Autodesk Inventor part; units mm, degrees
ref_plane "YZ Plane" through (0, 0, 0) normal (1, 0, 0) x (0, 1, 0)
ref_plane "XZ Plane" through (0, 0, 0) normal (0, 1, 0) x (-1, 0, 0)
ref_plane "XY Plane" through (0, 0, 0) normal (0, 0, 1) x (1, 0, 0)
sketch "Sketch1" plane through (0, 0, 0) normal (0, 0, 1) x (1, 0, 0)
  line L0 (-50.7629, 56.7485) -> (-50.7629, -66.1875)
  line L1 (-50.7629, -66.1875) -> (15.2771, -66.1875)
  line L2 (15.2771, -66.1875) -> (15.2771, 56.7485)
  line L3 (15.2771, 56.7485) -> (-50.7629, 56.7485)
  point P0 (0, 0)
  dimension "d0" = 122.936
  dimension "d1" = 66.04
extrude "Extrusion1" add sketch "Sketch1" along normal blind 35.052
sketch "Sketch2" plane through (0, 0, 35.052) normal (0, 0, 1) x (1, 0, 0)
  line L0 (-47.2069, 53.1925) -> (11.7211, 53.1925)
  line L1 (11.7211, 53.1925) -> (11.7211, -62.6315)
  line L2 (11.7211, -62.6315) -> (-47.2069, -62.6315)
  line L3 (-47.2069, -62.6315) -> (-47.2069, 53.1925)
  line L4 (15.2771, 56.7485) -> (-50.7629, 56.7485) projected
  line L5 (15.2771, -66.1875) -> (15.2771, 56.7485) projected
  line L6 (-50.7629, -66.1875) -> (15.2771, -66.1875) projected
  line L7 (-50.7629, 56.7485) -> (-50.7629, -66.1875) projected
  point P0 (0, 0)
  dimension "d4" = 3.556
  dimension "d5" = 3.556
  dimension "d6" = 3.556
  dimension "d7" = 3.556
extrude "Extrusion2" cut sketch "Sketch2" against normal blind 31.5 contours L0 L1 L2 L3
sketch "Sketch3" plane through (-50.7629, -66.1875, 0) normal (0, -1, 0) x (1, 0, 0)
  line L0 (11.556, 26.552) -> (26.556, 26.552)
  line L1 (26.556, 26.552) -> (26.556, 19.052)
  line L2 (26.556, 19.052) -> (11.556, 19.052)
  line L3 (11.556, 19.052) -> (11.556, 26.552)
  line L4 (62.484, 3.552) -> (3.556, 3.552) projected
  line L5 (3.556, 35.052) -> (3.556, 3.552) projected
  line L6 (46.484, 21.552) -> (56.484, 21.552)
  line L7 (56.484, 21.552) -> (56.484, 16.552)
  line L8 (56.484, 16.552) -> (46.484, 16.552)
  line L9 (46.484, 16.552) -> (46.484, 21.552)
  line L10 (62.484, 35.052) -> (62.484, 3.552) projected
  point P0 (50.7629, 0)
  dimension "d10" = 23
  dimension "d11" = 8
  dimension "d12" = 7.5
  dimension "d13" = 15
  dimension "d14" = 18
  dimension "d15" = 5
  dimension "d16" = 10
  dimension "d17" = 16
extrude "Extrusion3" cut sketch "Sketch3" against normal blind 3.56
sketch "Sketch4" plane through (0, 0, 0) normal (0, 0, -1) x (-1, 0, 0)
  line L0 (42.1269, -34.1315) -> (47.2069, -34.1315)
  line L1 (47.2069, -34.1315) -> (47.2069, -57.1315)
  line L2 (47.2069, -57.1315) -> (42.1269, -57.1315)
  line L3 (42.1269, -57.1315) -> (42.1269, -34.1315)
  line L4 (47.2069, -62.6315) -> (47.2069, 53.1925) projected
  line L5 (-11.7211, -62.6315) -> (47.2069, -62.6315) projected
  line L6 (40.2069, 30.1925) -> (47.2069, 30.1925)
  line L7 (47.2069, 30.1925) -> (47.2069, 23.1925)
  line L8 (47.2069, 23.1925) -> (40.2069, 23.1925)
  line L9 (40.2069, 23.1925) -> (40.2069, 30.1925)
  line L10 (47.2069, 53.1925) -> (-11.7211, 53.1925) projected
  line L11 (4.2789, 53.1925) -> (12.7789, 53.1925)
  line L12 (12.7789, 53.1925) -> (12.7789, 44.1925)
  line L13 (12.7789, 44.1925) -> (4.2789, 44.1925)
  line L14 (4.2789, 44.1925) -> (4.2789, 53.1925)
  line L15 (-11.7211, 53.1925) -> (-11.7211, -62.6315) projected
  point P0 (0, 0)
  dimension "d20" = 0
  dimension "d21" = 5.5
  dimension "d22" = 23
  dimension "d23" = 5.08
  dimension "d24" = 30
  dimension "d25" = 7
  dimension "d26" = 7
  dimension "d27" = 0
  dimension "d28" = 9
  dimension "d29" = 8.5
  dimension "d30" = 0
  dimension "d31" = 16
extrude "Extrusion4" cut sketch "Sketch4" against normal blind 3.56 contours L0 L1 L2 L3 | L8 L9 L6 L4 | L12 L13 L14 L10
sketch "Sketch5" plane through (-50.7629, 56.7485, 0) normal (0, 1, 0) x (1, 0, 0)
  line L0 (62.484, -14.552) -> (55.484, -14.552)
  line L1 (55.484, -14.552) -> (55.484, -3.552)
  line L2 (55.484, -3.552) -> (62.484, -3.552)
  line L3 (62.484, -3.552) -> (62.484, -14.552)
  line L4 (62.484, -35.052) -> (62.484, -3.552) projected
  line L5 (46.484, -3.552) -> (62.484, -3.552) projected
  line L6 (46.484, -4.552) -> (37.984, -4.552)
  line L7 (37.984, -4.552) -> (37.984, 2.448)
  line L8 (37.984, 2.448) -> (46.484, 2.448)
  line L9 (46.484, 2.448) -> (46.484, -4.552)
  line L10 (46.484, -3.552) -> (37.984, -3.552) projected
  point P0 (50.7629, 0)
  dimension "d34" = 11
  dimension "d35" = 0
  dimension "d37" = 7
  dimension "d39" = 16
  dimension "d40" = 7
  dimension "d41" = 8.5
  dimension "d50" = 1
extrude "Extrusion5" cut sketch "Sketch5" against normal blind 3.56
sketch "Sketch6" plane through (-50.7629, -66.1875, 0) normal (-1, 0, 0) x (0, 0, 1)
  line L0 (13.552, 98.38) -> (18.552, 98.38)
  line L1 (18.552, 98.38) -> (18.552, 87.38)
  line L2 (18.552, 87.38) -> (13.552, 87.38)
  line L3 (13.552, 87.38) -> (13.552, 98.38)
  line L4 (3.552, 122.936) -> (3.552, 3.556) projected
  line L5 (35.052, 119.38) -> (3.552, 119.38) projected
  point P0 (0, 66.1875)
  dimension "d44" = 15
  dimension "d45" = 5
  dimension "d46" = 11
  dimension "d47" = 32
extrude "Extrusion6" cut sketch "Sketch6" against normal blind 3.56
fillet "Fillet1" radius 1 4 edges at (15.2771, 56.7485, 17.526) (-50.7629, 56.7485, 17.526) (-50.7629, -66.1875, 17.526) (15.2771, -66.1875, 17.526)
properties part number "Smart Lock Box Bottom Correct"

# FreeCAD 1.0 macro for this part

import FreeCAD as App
import Part
import Sketcher


def edges_at(feature, points):
    """Names of the edges that pass closest to the given points."""
    edges = feature.Shape.Edges
    near = lambda p: min(range(len(edges)), key=lambda i: edges[i].distToShape(Part.Vertex(*p))[0])
    return sorted({f"Edge{near(p) + 1}" for p in points})

doc = App.newDocument("Part")
body = doc.addObject("PartDesign::Body", "Body")

# Sketch on XY plane
sketch1 = body.newObject("Sketcher::SketchObject", "Sketch")
sketch1.AttachmentSupport = (doc.getObject("XY_Plane"), [""])
sketch1.MapMode = "FlatFace"
sketch1.addGeometry(Part.LineSegment(App.Vector(15, 57, 0), App.Vector(-51, 57, 0)), False)
sketch1.addGeometry(Part.LineSegment(App.Vector(-51, 57, 0), App.Vector(-51, -66, 0)), False)
sketch1.addGeometry(Part.LineSegment(App.Vector(-51, -66, 0), App.Vector(15, -66, 0)), False)
sketch1.addGeometry(Part.LineSegment(App.Vector(15, -66, 0), App.Vector(15, 57, 0)), False)
sketch1.addConstraint(Sketcher.Constraint("Coincident", 0, 2, 1, 1))
sketch1.addConstraint(Sketcher.Constraint("Coincident", 1, 2, 2, 1))
sketch1.addConstraint(Sketcher.Constraint("Coincident", 2, 2, 3, 1))
sketch1.addConstraint(Sketcher.Constraint("Coincident", 3, 2, 0, 1))
sketch1.addConstraint(Sketcher.Constraint("Horizontal", 0))
sketch1.addConstraint(Sketcher.Constraint("Vertical", 1))
sketch1.addConstraint(Sketcher.Constraint("Horizontal", 2))
sketch1.addConstraint(Sketcher.Constraint("Vertical", 3))
sketch1.addConstraint(Sketcher.Constraint("DistanceX", 0, 2, 0, 1, 66.04))
sketch1.addConstraint(Sketcher.Constraint("DistanceY", 1, 2, 1, 1, 122.936))
sketch1.addConstraint(Sketcher.Constraint("DistanceX", 0, 2, -1, 1, 50.763))
sketch1.addConstraint(Sketcher.Constraint("DistanceY", -1, 1, 0, 2, 56.7485))
pad1 = body.newObject("PartDesign::Pad", "Pad")
pad1.Profile = sketch1
pad1.Length = 35.052

# Sketch on XY plane
sketch2 = body.newObject("Sketcher::SketchObject", "Sketch001")
sketch2.AttachmentSupport = (doc.getObject("XY_Plane"), [""])
sketch2.MapMode = "FlatFace"
sketch2.AttachmentOffset = App.Placement(App.Vector(0, 0, 35.052), App.Rotation())
sketch2.addGeometry(Part.LineSegment(App.Vector(12, 53, 0), App.Vector(-47, 53, 0)), False)
sketch2.addGeometry(Part.LineSegment(App.Vector(-47, 53, 0), App.Vector(-47, -63, 0)), False)
sketch2.addGeometry(Part.LineSegment(App.Vector(-47, -63, 0), App.Vector(12, -63, 0)), False)
sketch2.addGeometry(Part.LineSegment(App.Vector(12, -63, 0), App.Vector(12, 53, 0)), False)
sketch2.addConstraint(Sketcher.Constraint("Coincident", 0, 2, 1, 1))
sketch2.addConstraint(Sketcher.Constraint("Coincident", 1, 2, 2, 1))
sketch2.addConstraint(Sketcher.Constraint("Coincident", 2, 2, 3, 1))
sketch2.addConstraint(Sketcher.Constraint("Coincident", 3, 2, 0, 1))
sketch2.addConstraint(Sketcher.Constraint("Horizontal", 0))
sketch2.addConstraint(Sketcher.Constraint("Vertical", 1))
sketch2.addConstraint(Sketcher.Constraint("Horizontal", 2))
sketch2.addConstraint(Sketcher.Constraint("Vertical", 3))
sketch2.addConstraint(Sketcher.Constraint("DistanceX", 0, 2, 0, 1, 58.928))
sketch2.addConstraint(Sketcher.Constraint("DistanceY", 1, 2, 1, 1, 115.824))
sketch2.addConstraint(Sketcher.Constraint("DistanceX", 0, 2, -1, 1, 47.207))
sketch2.addConstraint(Sketcher.Constraint("DistanceY", -1, 1, 0, 2, 53.1925))
pocket1 = body.newObject("PartDesign::Pocket", "Pocket")
pocket1.Profile = sketch2
pocket1.Length = 31.5

# Sketch on XZ plane
sketch3 = body.newObject("Sketcher::SketchObject", "Sketch002")
sketch3.AttachmentSupport = (doc.getObject("XZ_Plane"), [""])
sketch3.MapMode = "FlatFace"
sketch3.AttachmentOffset = App.Placement(App.Vector(0, 0, 66.1875), App.Rotation())
sketch3.addGeometry(Part.LineSegment(App.Vector(-24, 27, 0), App.Vector(-39, 27, 0)), False)
sketch3.addGeometry(Part.LineSegment(App.Vector(-39, 27, 0), App.Vector(-39, 19, 0)), False)
sketch3.addGeometry(Part.LineSegment(App.Vector(-39, 19, 0), App.Vector(-24, 19, 0)), False)
sketch3.addGeometry(Part.LineSegment(App.Vector(-24, 19, 0), App.Vector(-24, 27, 0)), False)
sketch3.addGeometry(Part.LineSegment(App.Vector(6, 22, 0), App.Vector(-4, 22, 0)), False)
sketch3.addGeometry(Part.LineSegment(App.Vector(-4, 22, 0), App.Vector(-4, 17, 0)), False)
sketch3.addGeometry(Part.LineSegment(App.Vector(-4, 17, 0), App.Vector(6, 17, 0)), False)
sketch3.addGeometry(Part.LineSegment(App.Vector(6, 17, 0), App.Vector(6, 22, 0)), False)
sketch3.addConstraint(Sketcher.Constraint("Coincident", 0, 2, 1, 1))
sketch3.addConstraint(Sketcher.Constraint("Coincident", 1, 2, 2, 1))
sketch3.addConstraint(Sketcher.Constraint("Coincident", 2, 2, 3, 1))
sketch3.addConstraint(Sketcher.Constraint("Coincident", 3, 2, 0, 1))
sketch3.addConstraint(Sketcher.Constraint("Coincident", 4, 2, 5, 1))
sketch3.addConstraint(Sketcher.Constraint("Coincident", 5, 2, 6, 1))
sketch3.addConstraint(Sketcher.Constraint("Coincident", 6, 2, 7, 1))
sketch3.addConstraint(Sketcher.Constraint("Coincident", 7, 2, 4, 1))
sketch3.addConstraint(Sketcher.Constraint("Horizontal", 0))
sketch3.addConstraint(Sketcher.Constraint("Vertical", 1))
sketch3.addConstraint(Sketcher.Constraint("Horizontal", 2))
sketch3.addConstraint(Sketcher.Constraint("Vertical", 3))
sketch3.addConstraint(Sketcher.Constraint("Horizontal", 4))
sketch3.addConstraint(Sketcher.Constraint("Vertical", 5))
sketch3.addConstraint(Sketcher.Constraint("Horizontal", 6))
sketch3.addConstraint(Sketcher.Constraint("Vertical", 7))
sketch3.addConstraint(Sketcher.Constraint("DistanceX", 0, 2, 0, 1, 15.0))
sketch3.addConstraint(Sketcher.Constraint("DistanceX", 4, 2, 4, 1, 10.0))
sketch3.addConstraint(Sketcher.Constraint("DistanceY", 5, 2, 5, 1, 5.0))
sketch3.addConstraint(Sketcher.Constraint("DistanceY", 1, 2, 1, 1, 7.5))
sketch3.addConstraint(Sketcher.Constraint("DistanceY", 4, 2, 3, 2, 5.0))
sketch3.addConstraint(Sketcher.Constraint("DistanceX", 0, 2, -1, 1, 39.207))
sketch3.addConstraint(Sketcher.Constraint("DistanceY", -1, 1, 0, 2, 26.552))
sketch3.addConstraint(Sketcher.Constraint("DistanceX", 4, 2, -1, 1, 4.279))
pocket2 = body.newObject("PartDesign::Pocket", "Pocket001")
pocket2.Profile = sketch3
pocket2.Length = 3.56

# Sketch on XY plane
sketch4 = body.newObject("Sketcher::SketchObject", "Sketch003")
sketch4.AttachmentSupport = (doc.getObject("XY_Plane"), [""])
sketch4.MapMode = "FlatFace"
sketch4.addGeometry(Part.LineSegment(App.Vector(-47, -34, 0), App.Vector(-42, -34, 0)), False)
sketch4.addGeometry(Part.LineSegment(App.Vector(-42, -34, 0), App.Vector(-42, -57, 0)), False)
sketch4.addGeometry(Part.LineSegment(App.Vector(-42, -57, 0), App.Vector(-47, -57, 0)), False)
sketch4.addGeometry(Part.LineSegment(App.Vector(-47, -57, 0), App.Vector(-47, -34, 0)), False)
sketch4.addGeometry(Part.LineSegment(App.Vector(-40, 23, 0), App.Vector(-47, 23, 0)), False)
sketch4.addGeometry(Part.LineSegment(App.Vector(-47, 23, 0), App.Vector(-47, 30, 0)), False)
sketch4.addGeometry(Part.LineSegment(App.Vector(-47, 30, 0), App.Vector(-40, 30, 0)), False)
sketch4.addGeometry(Part.LineSegment(App.Vector(-40, 30, 0), App.Vector(-40, 23, 0)), False)
sketch4.addGeometry(Part.LineSegment(App.Vector(-13, 44, 0), App.Vector(-13, 53, 0)), False)
sketch4.addGeometry(Part.LineSegment(App.Vector(-13, 53, 0), App.Vector(-4, 53, 0)), False)
sketch4.addGeometry(Part.LineSegment(App.Vector(-4, 53, 0), App.Vector(-4, 44, 0)), False)
sketch4.addGeometry(Part.LineSegment(App.Vector(-4, 44, 0), App.Vector(-13, 44, 0)), False)
sketch4.addConstraint(Sketcher.Constraint("Coincident", 0, 2, 1, 1))
sketch4.addConstraint(Sketcher.Constraint("Coincident", 1, 2, 2, 1))
sketch4.addConstraint(Sketcher.Constraint("Coincident", 2, 2, 3, 1))
sketch4.addConstraint(Sketcher.Constraint("Coincident", 3, 2, 0, 1))
sketch4.addConstraint(Sketcher.Constraint("Coincident", 4, 2, 5, 1))
sketch4.addConstraint(Sketcher.Constraint("Coincident", 5, 2, 6, 1))
sketch4.addConstraint(Sketcher.Constraint("Coincident", 6, 2, 7, 1))
sketch4.addConstraint(Sketcher.Constraint("Coincident", 7, 2, 4, 1))
sketch4.addConstraint(Sketcher.Constraint("Coincident", 8, 2, 9, 1))
sketch4.addConstraint(Sketcher.Constraint("Coincident", 9, 2, 10, 1))
sketch4.addConstraint(Sketcher.Constraint("Coincident", 10, 2, 11, 1))
sketch4.addConstraint(Sketcher.Constraint("Coincident", 11, 2, 8, 1))
sketch4.addConstraint(Sketcher.Constraint("Horizontal", 0))
sketch4.addConstraint(Sketcher.Constraint("Vertical", 1))
sketch4.addConstraint(Sketcher.Constraint("Horizontal", 2))
sketch4.addConstraint(Sketcher.Constraint("Vertical", 3))
sketch4.addConstraint(Sketcher.Constraint("Horizontal", 4))
sketch4.addConstraint(Sketcher.Constraint("Vertical", 5))
sketch4.addConstraint(Sketcher.Constraint("Horizontal", 6))
sketch4.addConstraint(Sketcher.Constraint("Vertical", 7))
sketch4.addConstraint(Sketcher.Constraint("Vertical", 8))
sketch4.addConstraint(Sketcher.Constraint("Horizontal", 9))
sketch4.addConstraint(Sketcher.Constraint("Vertical", 10))
sketch4.addConstraint(Sketcher.Constraint("Horizontal", 11))
sketch4.addConstraint(Sketcher.Constraint("Vertical", 3, 2, 4, 2))
sketch4.addConstraint(Sketcher.Constraint("Equal", 6, 5))
sketch4.addConstraint(Sketcher.Constraint("DistanceX", 4, 2, 4, 1, 7.0))
sketch4.addConstraint(Sketcher.Constraint("DistanceY", 1, 2, 1, 1, 23.0))
sketch4.addConstraint(Sketcher.Constraint("DistanceY", 8, 1, 8, 2, 9.0))
sketch4.addConstraint(Sketcher.Constraint("DistanceX", 9, 1, 9, 2, 8.5))
sketch4.addConstraint(Sketcher.Constraint("DistanceY", 6, 2, 8, 2, 23.0))
sketch4.addConstraint(Sketcher.Constraint("DistanceX", 0, 1, 0, 2, 5.08))
sketch4.addConstraint(Sketcher.Constraint("DistanceX", 0, 2, -1, 1, 42.127))
sketch4.addConstraint(Sketcher.Constraint("DistanceX", 8, 2, -1, 1, 12.779))
sketch4.addConstraint(Sketcher.Constraint("DistanceY", 3, 2, 4, 2, 57.324))
sketch4.addConstraint(Sketcher.Constraint("DistanceY", 0, 2, -1, 1, 34.1315))
pocket3 = body.newObject("PartDesign::Pocket", "Pocket002")
pocket3.Profile = sketch4
pocket3.Length = 3.56
pocket3.Reversed = True

# Sketch on XZ plane
sketch5 = body.newObject("Sketcher::SketchObject", "Sketch004")
sketch5.AttachmentSupport = (doc.getObject("XZ_Plane"), [""])
sketch5.MapMode = "FlatFace"
sketch5.AttachmentOffset = App.Placement(App.Vector(0, 0, -56.7485), App.Rotation())
sketch5.addGeometry(Part.LineSegment(App.Vector(-4, 5, 0), App.Vector(-4, -2, 0)), False)
sketch5.addGeometry(Part.LineSegment(App.Vector(-4, -2, 0), App.Vector(-13, -2, 0)), False)
sketch5.addGeometry(Part.LineSegment(App.Vector(-13, -2, 0), App.Vector(-13, 5, 0)), False)
sketch5.addGeometry(Part.LineSegment(App.Vector(-13, 5, 0), App.Vector(-4, 5, 0)), False)
sketch5.addGeometry(Part.LineSegment(App.Vector(5, 15, 0), App.Vector(12, 15, 0)), False)
sketch5.addGeometry(Part.LineSegment(App.Vector(12, 15, 0), App.Vector(12, 4, 0)), False)
sketch5.addGeometry(Part.LineSegment(App.Vector(12, 4, 0), App.Vector(5, 4, 0)), False)
sketch5.addGeometry(Part.LineSegment(App.Vector(5, 4, 0), App.Vector(5, 15, 0)), False)
sketch5.addConstraint(Sketcher.Constraint("Coincident", 0, 2, 1, 1))
sketch5.addConstraint(Sketcher.Constraint("Coincident", 1, 2, 2, 1))
sketch5.addConstraint(Sketcher.Constraint("Coincident", 2, 2, 3, 1))
sketch5.addConstraint(Sketcher.Constraint("Coincident", 3, 2, 0, 1))
sketch5.addConstraint(Sketcher.Constraint("Coincident", 4, 2, 5, 1))
sketch5.addConstraint(Sketcher.Constraint("Coincident", 5, 2, 6, 1))
sketch5.addConstraint(Sketcher.Constraint("Coincident", 6, 2, 7, 1))
sketch5.addConstraint(Sketcher.Constraint("Coincident", 7, 2, 4, 1))
sketch5.addConstraint(Sketcher.Constraint("Vertical", 0))
sketch5.addConstraint(Sketcher.Constraint("Horizontal", 1))
sketch5.addConstraint(Sketcher.Constraint("Vertical", 2))
sketch5.addConstraint(Sketcher.Constraint("Horizontal", 3))
sketch5.addConstraint(Sketcher.Constraint("Horizontal", 4))
sketch5.addConstraint(Sketcher.Constraint("Vertical", 5))
sketch5.addConstraint(Sketcher.Constraint("Horizontal", 6))
sketch5.addConstraint(Sketcher.Constraint("Vertical", 7))
sketch5.addConstraint(Sketcher.Constraint("Equal", 6, 0))
sketch5.addConstraint(Sketcher.Constraint("DistanceX", 4, 1, 4, 2, 7.0))
sketch5.addConstraint(Sketcher.Constraint("DistanceY", 5, 2, 5, 1, 11.0))
sketch5.addConstraint(Sketcher.Constraint("DistanceX", 1, 2, 1, 1, 8.5))
sketch5.addConstraint(Sketcher.Constraint("DistanceX", 3, 2, 4, 2, 16.0))
sketch5.addConstraint(Sketcher.Constraint("DistanceY", 5, 2, 3, 2, 1.0))
sketch5.addConstraint(Sketcher.Constraint("DistanceX", 0, 2, -1, 1, 4.279))
sketch5.addConstraint(Sketcher.Constraint("DistanceY", 0, 2, -1, 1, 2.448))
pocket4 = body.newObject("PartDesign::Pocket", "Pocket003")
pocket4.Profile = sketch5
pocket4.Length = 3.56
pocket4.Reversed = True

# Sketch on YZ plane
sketch6 = body.newObject("Sketcher::SketchObject", "Sketch005")
sketch6.AttachmentSupport = (doc.getObject("YZ_Plane"), [""])
sketch6.MapMode = "FlatFace"
sketch6.AttachmentOffset = App.Placement(App.Vector(0, 0, -50.7629), App.Rotation())
sketch6.addGeometry(Part.LineSegment(App.Vector(32, 19, 0), App.Vector(32, 14, 0)), False)
sketch6.addGeometry(Part.LineSegment(App.Vector(32, 14, 0), App.Vector(21, 14, 0)), False)
sketch6.addGeometry(Part.LineSegment(App.Vector(21, 14, 0), App.Vector(21, 19, 0)), False)
sketch6.addGeometry(Part.LineSegment(App.Vector(21, 19, 0), App.Vector(32, 19, 0)), False)
sketch6.addConstraint(Sketcher.Constraint("Coincident", 0, 2, 1, 1))
sketch6.addConstraint(Sketcher.Constraint("Coincident", 1, 2, 2, 1))
sketch6.addConstraint(Sketcher.Constraint("Coincident", 2, 2, 3, 1))
sketch6.addConstraint(Sketcher.Constraint("Coincident", 3, 2, 0, 1))
sketch6.addConstraint(Sketcher.Constraint("Vertical", 0))
sketch6.addConstraint(Sketcher.Constraint("Horizontal", 1))
sketch6.addConstraint(Sketcher.Constraint("Vertical", 2))
sketch6.addConstraint(Sketcher.Constraint("Horizontal", 3))
sketch6.addConstraint(Sketcher.Constraint("DistanceX", 1, 2, 1, 1, 11.0))
sketch6.addConstraint(Sketcher.Constraint("DistanceY", 0, 2, 0, 1, 5.0))
sketch6.addConstraint(Sketcher.Constraint("DistanceY", -1, 1, 0, 2, 13.552))
sketch6.addConstraint(Sketcher.Constraint("DistanceX", -1, 1, 0, 2, 32.1925))
pocket5 = body.newObject("PartDesign::Pocket", "Pocket004")
pocket5.Profile = sketch6
pocket5.Length = 3.56
pocket5.Reversed = True
doc.recompute()

fillet = body.newObject("PartDesign::Fillet", "Fillet")
fillet.Base = (pocket5, edges_at(pocket5, [
    (15.277, 56.748, 17.526),
    (-50.763, 56.748, 17.526),
    (-50.763, -66.188, 17.526),
    (15.277, -66.188, 17.526),
]))
fillet.Radius = 1

doc.recompute()
